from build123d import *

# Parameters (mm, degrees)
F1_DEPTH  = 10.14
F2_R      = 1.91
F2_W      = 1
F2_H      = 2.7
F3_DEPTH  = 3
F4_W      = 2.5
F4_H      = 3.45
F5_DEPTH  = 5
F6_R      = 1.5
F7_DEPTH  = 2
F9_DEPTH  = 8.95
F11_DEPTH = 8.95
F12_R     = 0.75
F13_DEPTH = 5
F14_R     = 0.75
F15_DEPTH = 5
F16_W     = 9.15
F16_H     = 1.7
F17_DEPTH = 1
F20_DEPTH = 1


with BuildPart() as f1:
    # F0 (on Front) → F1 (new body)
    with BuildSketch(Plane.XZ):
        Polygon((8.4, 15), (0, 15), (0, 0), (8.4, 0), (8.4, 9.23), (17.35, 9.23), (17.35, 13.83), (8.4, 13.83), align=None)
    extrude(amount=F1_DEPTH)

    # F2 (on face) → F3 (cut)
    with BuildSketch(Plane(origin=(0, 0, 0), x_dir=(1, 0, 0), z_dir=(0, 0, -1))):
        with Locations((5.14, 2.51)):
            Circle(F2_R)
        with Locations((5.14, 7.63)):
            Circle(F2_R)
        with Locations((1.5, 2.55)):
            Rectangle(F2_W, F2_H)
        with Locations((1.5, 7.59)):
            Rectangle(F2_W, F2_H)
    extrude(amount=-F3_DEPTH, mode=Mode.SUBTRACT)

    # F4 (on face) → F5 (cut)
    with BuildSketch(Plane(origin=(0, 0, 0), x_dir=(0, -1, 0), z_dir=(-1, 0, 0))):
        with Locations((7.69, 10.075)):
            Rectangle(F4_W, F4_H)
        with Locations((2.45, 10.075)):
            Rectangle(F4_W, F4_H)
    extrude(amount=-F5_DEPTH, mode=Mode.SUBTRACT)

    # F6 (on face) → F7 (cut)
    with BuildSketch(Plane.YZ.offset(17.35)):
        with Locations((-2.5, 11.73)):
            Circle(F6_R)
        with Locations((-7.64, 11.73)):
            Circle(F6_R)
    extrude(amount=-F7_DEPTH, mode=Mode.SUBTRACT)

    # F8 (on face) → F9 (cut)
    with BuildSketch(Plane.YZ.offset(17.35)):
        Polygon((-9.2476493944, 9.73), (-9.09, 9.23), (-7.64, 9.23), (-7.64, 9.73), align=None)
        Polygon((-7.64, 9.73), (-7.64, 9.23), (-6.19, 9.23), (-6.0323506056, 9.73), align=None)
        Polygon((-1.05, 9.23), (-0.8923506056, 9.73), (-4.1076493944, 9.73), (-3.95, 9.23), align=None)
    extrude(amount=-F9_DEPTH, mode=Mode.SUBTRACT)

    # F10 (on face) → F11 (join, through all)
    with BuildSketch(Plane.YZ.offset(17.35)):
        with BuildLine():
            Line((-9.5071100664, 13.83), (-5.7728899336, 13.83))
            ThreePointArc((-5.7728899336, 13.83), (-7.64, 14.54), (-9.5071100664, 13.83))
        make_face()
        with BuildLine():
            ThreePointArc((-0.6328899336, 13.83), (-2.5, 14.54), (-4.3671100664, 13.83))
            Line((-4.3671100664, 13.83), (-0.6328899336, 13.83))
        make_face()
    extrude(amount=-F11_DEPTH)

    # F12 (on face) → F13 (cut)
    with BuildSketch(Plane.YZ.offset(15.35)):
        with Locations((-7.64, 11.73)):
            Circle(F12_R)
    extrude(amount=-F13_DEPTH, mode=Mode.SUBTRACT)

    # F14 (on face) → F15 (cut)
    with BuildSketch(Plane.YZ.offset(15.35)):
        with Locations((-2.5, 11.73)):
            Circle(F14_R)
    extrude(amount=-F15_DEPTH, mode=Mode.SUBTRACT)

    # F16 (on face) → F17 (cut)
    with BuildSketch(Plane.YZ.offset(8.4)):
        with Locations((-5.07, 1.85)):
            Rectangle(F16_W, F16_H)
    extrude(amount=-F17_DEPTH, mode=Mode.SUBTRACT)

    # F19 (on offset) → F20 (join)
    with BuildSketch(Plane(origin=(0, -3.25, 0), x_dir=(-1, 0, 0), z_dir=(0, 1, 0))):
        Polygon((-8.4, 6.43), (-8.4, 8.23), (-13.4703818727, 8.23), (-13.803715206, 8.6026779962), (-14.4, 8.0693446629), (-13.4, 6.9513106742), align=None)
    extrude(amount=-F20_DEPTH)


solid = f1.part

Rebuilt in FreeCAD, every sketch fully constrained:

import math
import FreeCAD as App
import Part
import Sketcher
Q = App.Units.Quantity

doc = App.newDocument("Part")
body = doc.addObject("PartDesign::Body", "Body")

sketch1 = body.newObject("Sketcher::SketchObject", "Sketch")
sketch1.AttachmentSupport = (doc.getObject("XZ_Plane"), [""])
sketch1.MapMode = "FlatFace"
sketch1.addGeometry([
    Part.LineSegment(App.Vector(8.4, 15, 0), App.Vector(0, 15, 0)),
    Part.LineSegment(App.Vector(0, 15, 0), App.Vector(0, 0, 0)),
    Part.LineSegment(App.Vector(0, 0, 0), App.Vector(8.4, 0, 0)),
    Part.LineSegment(App.Vector(8.4, 0, 0), App.Vector(8.4, 9.23, 0)),
    Part.LineSegment(App.Vector(8.4, 9.23, 0), App.Vector(17.35, 9.23, 0)),
    Part.LineSegment(App.Vector(17.35, 9.23, 0), App.Vector(17.35, 13.83, 0)),
    Part.LineSegment(App.Vector(17.35, 13.83, 0), App.Vector(8.4, 13.83, 0)),
    Part.LineSegment(App.Vector(8.4, 13.83, 0), App.Vector(8.4, 15, 0)),
], False)
sketch1.addConstraint([
    Sketcher.Constraint("Coincident", 0, 2, 1, 1),
    Sketcher.Constraint("Coincident", 1, 2, 2, 1),
    Sketcher.Constraint("Coincident", 2, 2, 3, 1),
    Sketcher.Constraint("Coincident", 3, 2, 4, 1),
    Sketcher.Constraint("Coincident", 4, 2, 5, 1),
    Sketcher.Constraint("Coincident", 5, 2, 6, 1),
    Sketcher.Constraint("Coincident", 6, 2, 7, 1),
    Sketcher.Constraint("Coincident", 7, 2, 0, 1),
    Sketcher.Constraint("Horizontal", 0),
    Sketcher.Constraint("Vertical", 1),
    Sketcher.Constraint("Horizontal", 2),
    Sketcher.Constraint("Vertical", 3),
    Sketcher.Constraint("Horizontal", 4),
    Sketcher.Constraint("Vertical", 5),
    Sketcher.Constraint("Horizontal", 6),
    Sketcher.Constraint("Vertical", 7),
    Sketcher.Constraint("Coincident", 1, 2, -1, 1),
    Sketcher.Constraint("Vertical", 3, 2, 6, 2),
    Sketcher.Constraint("DistanceY", 1, 2, 1, 1, 15.0),
    Sketcher.Constraint("DistanceX", 0, 2, 0, 1, 8.4),
    Sketcher.Constraint("DistanceY", 5, 1, 5, 2, 4.6),
    Sketcher.Constraint("DistanceX", 4, 1, 4, 2, 8.95),
    Sketcher.Constraint("DistanceY", 3, 1, 3, 2, 9.23),
])
pad1 = body.newObject("PartDesign::Pad", "Pad")
pad1.Profile = sketch1
pad1.Length = 10.14

sketch2 = body.newObject("Sketcher::SketchObject", "Sketch001")
sketch2.AttachmentSupport = (doc.getObject("XY_Plane"), [""])
sketch2.MapMode = "FlatFace"
sketch2.addGeometry([
    Part.Circle(App.Vector(5.14, -2.51, 0), App.Vector(0, 0, 1), 1.91),
    Part.Circle(App.Vector(5.14, -7.63, 0), App.Vector(0, 0, 1), 1.91),
    Part.LineSegment(App.Vector(1, -3.9, 0), App.Vector(1, -1.2, 0)),
    Part.LineSegment(App.Vector(1, -1.2, 0), App.Vector(2, -1.2, 0)),
    Part.LineSegment(App.Vector(2, -1.2, 0), App.Vector(2, -3.9, 0)),
    Part.LineSegment(App.Vector(2, -3.9, 0), App.Vector(1, -3.9, 0)),
    Part.LineSegment(App.Vector(1, -8.94, 0), App.Vector(1, -6.24, 0)),
    Part.LineSegment(App.Vector(1, -6.24, 0), App.Vector(2, -6.24, 0)),
    Part.LineSegment(App.Vector(2, -6.24, 0), App.Vector(2, -8.94, 0)),
    Part.LineSegment(App.Vector(2, -8.94, 0), App.Vector(1, -8.94, 0)),
], False)
sketch2.addConstraint([
    Sketcher.Constraint("Coincident", 2, 2, 3, 1),
    Sketcher.Constraint("Coincident", 3, 2, 4, 1),
    Sketcher.Constraint("Coincident", 4, 2, 5, 1),
    Sketcher.Constraint("Coincident", 5, 2, 2, 1),
    Sketcher.Constraint("Coincident", 6, 2, 7, 1),
    Sketcher.Constraint("Coincident", 7, 2, 8, 1),
    Sketcher.Constraint("Coincident", 8, 2, 9, 1),
    Sketcher.Constraint("Coincident", 9, 2, 6, 1),
    Sketcher.Constraint("Vertical", 2),
    Sketcher.Constraint("Horizontal", 3),
    Sketcher.Constraint("Vertical", 4),
    Sketcher.Constraint("Horizontal", 5),
    Sketcher.Constraint("Vertical", 6),
    Sketcher.Constraint("Horizontal", 7),
    Sketcher.Constraint("Vertical", 8),
    Sketcher.Constraint("Horizontal", 9),
    Sketcher.Constraint("Equal", 0, 1),
    Sketcher.Constraint("Vertical", 0, 3, 1, 3),
    Sketcher.Constraint("Vertical", 5, 2, 6, 2),
    Sketcher.Constraint("Vertical", 4, 2, 7, 2),
    Sketcher.Constraint("Equal", 4, 6),
    Sketcher.Constraint("Diameter", 0, 3.82),
    Sketcher.Constraint("DistanceX", 3, 1, 3, 2, 1.0),
    Sketcher.Constraint("DistanceY", 2, 1, 2, 2, 2.7),
    Sketcher.Constraint("DistanceX", -1, 1, 2, 2, 1.0),
    Sketcher.Constraint("DistanceY", 2, 2, -1, 1, 1.2),
    Sketcher.Constraint("DistanceX", -1, 1, 0, 3, 5.14),
    Sketcher.Constraint("DistanceY", 0, 3, -1, 1, 2.51),
    Sketcher.Constraint("DistanceY", 1, 3, -1, 1, 7.63),
    Sketcher.Constraint("DistanceY", 6, 2, -1, 1, 6.24),
])
pocket1 = body.newObject("PartDesign::Pocket", "Pocket")
pocket1.Profile = sketch2
pocket1.Length = 3
pocket1.Reversed = True

sketch3 = body.newObject("Sketcher::SketchObject", "Sketch002")
sketch3.AttachmentSupport = (doc.getObject("YZ_Plane"), [""])
sketch3.MapMode = "FlatFace"
sketch3.addGeometry([
    Part.LineSegment(App.Vector(-6.44, 11.8, 0), App.Vector(-6.44, 8.35, 0)),
    Part.LineSegment(App.Vector(-6.44, 8.35, 0), App.Vector(-8.94, 8.35, 0)),
    Part.LineSegment(App.Vector(-8.94, 8.35, 0), App.Vector(-8.94, 11.8, 0)),
    Part.LineSegment(App.Vector(-8.94, 11.8, 0), App.Vector(-6.44, 11.8, 0)),
    Part.LineSegment(App.Vector(-1.2, 11.8, 0), App.Vector(-1.2, 8.35, 0)),
    Part.LineSegment(App.Vector(-1.2, 8.35, 0), App.Vector(-3.7, 8.35, 0)),
    Part.LineSegment(App.Vector(-3.7, 8.35, 0), App.Vector(-3.7, 11.8, 0)),
    Part.LineSegment(App.Vector(-3.7, 11.8, 0), App.Vector(-1.2, 11.8, 0)),
], False)
sketch3.addConstraint([
    Sketcher.Constraint("Coincident", 0, 2, 1, 1),
    Sketcher.Constraint("Coincident", 1, 2, 2, 1),
    Sketcher.Constraint("Coincident", 2, 2, 3, 1),
    Sketcher.Constraint("Coincident", 3, 2, 0, 1),
    Sketcher.Constraint("Coincident", 4, 2, 5, 1),
    Sketcher.Constraint("Coincident", 5, 2, 6, 1),
    Sketcher.Constraint("Coincident", 6, 2, 7, 1),
    Sketcher.Constraint("Coincident", 7, 2, 4, 1),
    Sketcher.Constraint("Vertical", 0),
    Sketcher.Constraint("Horizontal", 1),
    Sketcher.Constraint("Vertical", 2),
    Sketcher.Constraint("Horizontal", 3),
    Sketcher.Constraint("Vertical", 4),
    Sketcher.Constraint("Horizontal", 5),
    Sketcher.Constraint("Vertical", 6),
    Sketcher.Constraint("Horizontal", 7),
    Sketcher.Constraint("Horizontal", 1, 2, 4, 2),
    Sketcher.Constraint("Horizontal", 3, 2, 6, 2),
    Sketcher.Constraint("Equal", 3, 5),
    Sketcher.Constraint("DistanceX", 1, 2, 1, 1, 2.5),
    Sketcher.Constraint("DistanceY", 0, 2, 0, 1, 3.45),
    Sketcher.Constraint("DistanceY", -1, 1, 2, 2, 11.8),
    Sketcher.Constraint("DistanceX", 4, 2, -1, 1, 1.2),
    Sketcher.Constraint("DistanceX", 0, 2, -1, 1, 6.44),
])
pocket2 = body.newObject("PartDesign::Pocket", "Pocket001")
pocket2.Profile = sketch3
pocket2.Length = 5
pocket2.Reversed = True

sketch4 = body.newObject("Sketcher::SketchObject", "Sketch003")
sketch4.AttachmentSupport = (doc.getObject("YZ_Plane"), [""])
sketch4.MapMode = "FlatFace"
sketch4.AttachmentOffset = App.Placement(App.Vector(0, 0, 17.35), App.Rotation())
sketch4.addGeometry([
    Part.Circle(App.Vector(-2.5, 11.73, 0), App.Vector(0, 0, 1), 1.5),
    Part.Circle(App.Vector(-7.64, 11.73, 0), App.Vector(0, 0, 1), 1.5),
], False)
sketch4.addConstraint([
    Sketcher.Constraint("Equal", 0, 1),
    Sketcher.Constraint("Horizontal", 0, 3, 1, 3),
    Sketcher.Constraint("Diameter", 0, 3.0),
    Sketcher.Constraint("DistanceX", 0, 3, -1, 1, 2.5),
    Sketcher.Constraint("DistanceY", -1, 1, 0, 3, 11.73),
    Sketcher.Constraint("DistanceX", 1, 3, -1, 1, 7.64),
])
pocket3 = body.newObject("PartDesign::Pocket", "Pocket002")
pocket3.Profile = sketch4
pocket3.Length = 2

sketch5 = body.newObject("Sketcher::SketchObject", "Sketch004")
sketch5.AttachmentSupport = (doc.getObject("YZ_Plane"), [""])
sketch5.MapMode = "FlatFace"
sketch5.AttachmentOffset = App.Placement(App.Vector(0, 0, 17.35), App.Rotation())
sketch5.addGeometry([
    Part.LineSegment(App.Vector(-9.247649, 9.73, 0), App.Vector(-9.09, 9.23, 0)),
    Part.LineSegment(App.Vector(-9.09, 9.23, 0), App.Vector(-6.19, 9.23, 0)),
    Part.LineSegment(App.Vector(-6.19, 9.23, 0), App.Vector(-6.032351, 9.73, 0)),
    Part.LineSegment(App.Vector(-6.032351, 9.73, 0), App.Vector(-9.247649, 9.73, 0)),
    Part.LineSegment(App.Vector(-1.05, 9.23, 0), App.Vector(-0.892351, 9.73, 0)),
    Part.LineSegment(App.Vector(-0.892351, 9.73, 0), App.Vector(-4.107649, 9.73, 0)),
    Part.LineSegment(App.Vector(-4.107649, 9.73, 0), App.Vector(-3.95, 9.23, 0)),
    Part.LineSegment(App.Vector(-3.95, 9.23, 0), App.Vector(-1.05, 9.23, 0)),
], False)
sketch5.addConstraint([
    Sketcher.Constraint("Coincident", 0, 2, 1, 1),
    Sketcher.Constraint("Coincident", 1, 2, 2, 1),
    Sketcher.Constraint("Coincident", 2, 2, 3, 1),
    Sketcher.Constraint("Coincident", 3, 2, 0, 1),
    Sketcher.Constraint("Coincident", 4, 2, 5, 1),
    Sketcher.Constraint("Coincident", 5, 2, 6, 1),
    Sketcher.Constraint("Coincident", 6, 2, 7, 1),
    Sketcher.Constraint("Coincident", 7, 2, 4, 1),
    Sketcher.Constraint("Horizontal", 1),
    Sketcher.Constraint("Horizontal", 3),
    Sketcher.Constraint("Horizontal", 5),
    Sketcher.Constraint("Horizontal", 7),
    Sketcher.Constraint("Parallel", 2, 4),
    Sketcher.Constraint("Parallel", 0, 6),
    Sketcher.Constraint("Horizontal", 3, 2, 4, 2),
    Sketcher.Constraint("Horizontal", 1, 2, 6, 2),
    Sketcher.Constraint("Equal", 3, 5),
    Sketcher.Constraint("Equal", 0, 2),
    Sketcher.Constraint("DistanceX", 1, 1, 1, 2, 2.9),
    Sketcher.Constraint("Angle", 0, Q("-72.5 deg")),
    Sketcher.Constraint("DistanceY", 1, 2, 2, 2, 0.5),
    Sketcher.Constraint("DistanceX", 0, 2, -1, 1, 9.09),
    Sketcher.Constraint("DistanceY", -1, 1, 0, 2, 9.23),
    Sketcher.Constraint("DistanceX", 6, 2, -1, 1, 3.95),
])
pocket4 = body.newObject("PartDesign::Pocket", "Pocket003")
pocket4.Profile = sketch5
pocket4.Length = 8.95

sketch6 = body.newObject("Sketcher::SketchObject", "Sketch005")
sketch6.AttachmentSupport = (doc.getObject("YZ_Plane"), [""])
sketch6.MapMode = "FlatFace"
sketch6.AttachmentOffset = App.Placement(App.Vector(0, 0, 17.35), App.Rotation())
sketch6.addGeometry([
    Part.LineSegment(App.Vector(-9.50711, 13.83, 0), App.Vector(-5.77289, 13.83, 0)),
    Part.ArcOfCircle(Part.Circle(App.Vector(-7.64, 11.73, 0), App.Vector(0, 0, 1), 2.81), math.radians(48.359703), math.radians(131.640297)),
    Part.ArcOfCircle(Part.Circle(App.Vector(-2.5, 11.73, 0), App.Vector(0, 0, 1), 2.81), math.radians(48.359703), math.radians(131.640297)),
    Part.LineSegment(App.Vector(-4.36711, 13.83, 0), App.Vector(-0.63289, 13.83, 0)),
], False)
sketch6.addConstraint([
    Sketcher.Constraint("Coincident", 0, 1, 1, 2),
    Sketcher.Constraint("Coincident", 1, 1, 0, 2),
    Sketcher.Constraint("Coincident", 2, 1, 3, 2),
    Sketcher.Constraint("Coincident", 3, 1, 2, 2),
    Sketcher.Constraint("Horizontal", 0),
    Sketcher.Constraint("Horizontal", 3),
    Sketcher.Constraint("Equal", 1, 2),
    Sketcher.Constraint("Horizontal", 1, 3, 2, 3),
    Sketcher.Constraint("Horizontal", 1, 1, 2, 1),
    Sketcher.Constraint("Radius", 1, 2.81),
    Sketcher.Constraint("DistanceX", 2, 3, -1, 1, 2.5),
    Sketcher.Constraint("DistanceY", 1, 3, 0, 1, 2.1),
    Sketcher.Constraint("DistanceX", 1, 3, -1, 1, 7.64),
    Sketcher.Constraint("DistanceY", -1, 1, 1, 3, 11.73),
])
pad2 = body.newObject("PartDesign::Pad", "Pad001")
pad2.Profile = sketch6
pad2.Type = "UpToLast"
pad2.Reversed = True

sketch7 = body.newObject("Sketcher::SketchObject", "Sketch006")
sketch7.AttachmentSupport = (doc.getObject("YZ_Plane"), [""])
sketch7.MapMode = "FlatFace"
sketch7.AttachmentOffset = App.Placement(App.Vector(0, 0, 15.35), App.Rotation())
sketch7.addGeometry(Part.Circle(App.Vector(-7.64, 11.73, 0), App.Vector(0, 0, 1), 0.75), False)
sketch7.addConstraint([
    Sketcher.Constraint("Diameter", 0, 1.5),
    Sketcher.Constraint("DistanceX", 0, 3, -1, 1, 7.64),
    Sketcher.Constraint("DistanceY", -1, 1, 0, 3, 11.73),
])
pocket5 = body.newObject("PartDesign::Pocket", "Pocket004")
pocket5.Profile = sketch7
pocket5.Length = 5

sketch8 = body.newObject("Sketcher::SketchObject", "Sketch007")
sketch8.AttachmentSupport = (doc.getObject("YZ_Plane"), [""])
sketch8.MapMode = "FlatFace"
sketch8.AttachmentOffset = App.Placement(App.Vector(0, 0, 15.35), App.Rotation())
sketch8.addGeometry(Part.Circle(App.Vector(-2.5, 11.73, 0), App.Vector(0, 0, 1), 0.75), False)
sketch8.addConstraint([
    Sketcher.Constraint("Diameter", 0, 1.5),
    Sketcher.Constraint("DistanceX", 0, 3, -1, 1, 2.5),
    Sketcher.Constraint("DistanceY", -1, 1, 0, 3, 11.73),
])
pocket6 = body.newObject("PartDesign::Pocket", "Pocket005")
pocket6.Profile = sketch8
pocket6.Length = 5

sketch9 = body.newObject("Sketcher::SketchObject", "Sketch008")
sketch9.AttachmentSupport = (doc.getObject("YZ_Plane"), [""])
sketch9.MapMode = "FlatFace"
sketch9.AttachmentOffset = App.Placement(App.Vector(0, 0, 8.4), App.Rotation())
sketch9.addGeometry([
    Part.LineSegment(App.Vector(-9.645, 2.7, 0), App.Vector(-9.645, 1, 0)),
    Part.LineSegment(App.Vector(-9.645, 1, 0), App.Vector(-0.495, 1, 0)),
    Part.LineSegment(App.Vector(-0.495, 1, 0), App.Vector(-0.495, 2.7, 0)),
    Part.LineSegment(App.Vector(-0.495, 2.7, 0), App.Vector(-9.645, 2.7, 0)),
], False)
sketch9.addConstraint([
    Sketcher.Constraint("Coincident", 0, 2, 1, 1),
    Sketcher.Constraint("Coincident", 1, 2, 2, 1),
    Sketcher.Constraint("Coincident", 2, 2, 3, 1),
    Sketcher.Constraint("Coincident", 3, 2, 0, 1),
    Sketcher.Constraint("Vertical", 0),
    Sketcher.Constraint("Horizontal", 1),
    Sketcher.Constraint("Vertical", 2),
    Sketcher.Constraint("Horizontal", 3),
    Sketcher.Constraint("DistanceY", 0, 2, 0, 1, 1.7),
    Sketcher.Constraint("DistanceY", -1, 1, 0, 2, 1.0),
    Sketcher.Constraint("DistanceX", 1, 1, 1, 2, 9.15),
    Sketcher.Constraint("DistanceX", 0, 2, -1, 1, 9.645),
])
pocket7 = body.newObject("PartDesign::Pocket", "Pocket006")
pocket7.Profile = sketch9
pocket7.Length = 1

sketch10 = body.newObject("Sketcher::SketchObject", "Sketch009")
sketch10.AttachmentSupport = (doc.getObject("XZ_Plane"), [""])
sketch10.MapMode = "FlatFace"
sketch10.AttachmentOffset = App.Placement(App.Vector(0, 0, 3.25), App.Rotation())
sketch10.addGeometry([
    Part.LineSegment(App.Vector(8.4, 6.43, 0), App.Vector(8.4, 8.23, 0)),
    Part.LineSegment(App.Vector(8.4, 8.23, 0), App.Vector(13.470382, 8.23, 0)),
    Part.LineSegment(App.Vector(13.470382, 8.23, 0), App.Vector(13.803715, 8.602678, 0)),
    Part.LineSegment(App.Vector(13.803715, 8.602678, 0), App.Vector(14.4, 8.069345, 0)),
    Part.LineSegment(App.Vector(14.4, 8.069345, 0), App.Vector(13.4, 6.951311, 0)),
    Part.LineSegment(App.Vector(13.4, 6.951311, 0), App.Vector(8.4, 6.43, 0)),
], False)
sketch10.addConstraint([
    Sketcher.Constraint("Coincident", 0, 2, 1, 1),
    Sketcher.Constraint("Coincident", 1, 2, 2, 1),
    Sketcher.Constraint("Coincident", 2, 2, 3, 1),
    Sketcher.Constraint("Coincident", 3, 2, 4, 1),
    Sketcher.Constraint("Coincident", 4, 2, 5, 1),
    Sketcher.Constraint("Coincident", 5, 2, 0, 1),
    Sketcher.Constraint("Vertical", 0),
    Sketcher.Constraint("Horizontal", 1),
    Sketcher.Constraint("Perpendicular", 2, 3),
    Sketcher.Constraint("Perpendicular", 3, 4),
    Sketcher.Constraint("DistanceY", 0, 1, 0, 2, 1.8),
    Sketcher.Constraint("DistanceX", 0, 2, 3, 2, 6.0),
    Sketcher.Constraint("DistanceX", 4, 2, 3, 2, 1.0),
    Sketcher.Constraint("Distance", 2, 0.5),
    Sketcher.Constraint("Distance", 3, 0.8),
    Sketcher.Constraint("Distance", 4, 1.5),
    Sketcher.Constraint("DistanceX", -1, 1, 0, 2, 8.4),
    Sketcher.Constraint("DistanceY", -1, 1, 0, 2, 8.23),
])
pad3 = body.newObject("PartDesign::Pad", "Pad002")
pad3.Profile = sketch10
pad3.Length = 1

doc.recompute()
